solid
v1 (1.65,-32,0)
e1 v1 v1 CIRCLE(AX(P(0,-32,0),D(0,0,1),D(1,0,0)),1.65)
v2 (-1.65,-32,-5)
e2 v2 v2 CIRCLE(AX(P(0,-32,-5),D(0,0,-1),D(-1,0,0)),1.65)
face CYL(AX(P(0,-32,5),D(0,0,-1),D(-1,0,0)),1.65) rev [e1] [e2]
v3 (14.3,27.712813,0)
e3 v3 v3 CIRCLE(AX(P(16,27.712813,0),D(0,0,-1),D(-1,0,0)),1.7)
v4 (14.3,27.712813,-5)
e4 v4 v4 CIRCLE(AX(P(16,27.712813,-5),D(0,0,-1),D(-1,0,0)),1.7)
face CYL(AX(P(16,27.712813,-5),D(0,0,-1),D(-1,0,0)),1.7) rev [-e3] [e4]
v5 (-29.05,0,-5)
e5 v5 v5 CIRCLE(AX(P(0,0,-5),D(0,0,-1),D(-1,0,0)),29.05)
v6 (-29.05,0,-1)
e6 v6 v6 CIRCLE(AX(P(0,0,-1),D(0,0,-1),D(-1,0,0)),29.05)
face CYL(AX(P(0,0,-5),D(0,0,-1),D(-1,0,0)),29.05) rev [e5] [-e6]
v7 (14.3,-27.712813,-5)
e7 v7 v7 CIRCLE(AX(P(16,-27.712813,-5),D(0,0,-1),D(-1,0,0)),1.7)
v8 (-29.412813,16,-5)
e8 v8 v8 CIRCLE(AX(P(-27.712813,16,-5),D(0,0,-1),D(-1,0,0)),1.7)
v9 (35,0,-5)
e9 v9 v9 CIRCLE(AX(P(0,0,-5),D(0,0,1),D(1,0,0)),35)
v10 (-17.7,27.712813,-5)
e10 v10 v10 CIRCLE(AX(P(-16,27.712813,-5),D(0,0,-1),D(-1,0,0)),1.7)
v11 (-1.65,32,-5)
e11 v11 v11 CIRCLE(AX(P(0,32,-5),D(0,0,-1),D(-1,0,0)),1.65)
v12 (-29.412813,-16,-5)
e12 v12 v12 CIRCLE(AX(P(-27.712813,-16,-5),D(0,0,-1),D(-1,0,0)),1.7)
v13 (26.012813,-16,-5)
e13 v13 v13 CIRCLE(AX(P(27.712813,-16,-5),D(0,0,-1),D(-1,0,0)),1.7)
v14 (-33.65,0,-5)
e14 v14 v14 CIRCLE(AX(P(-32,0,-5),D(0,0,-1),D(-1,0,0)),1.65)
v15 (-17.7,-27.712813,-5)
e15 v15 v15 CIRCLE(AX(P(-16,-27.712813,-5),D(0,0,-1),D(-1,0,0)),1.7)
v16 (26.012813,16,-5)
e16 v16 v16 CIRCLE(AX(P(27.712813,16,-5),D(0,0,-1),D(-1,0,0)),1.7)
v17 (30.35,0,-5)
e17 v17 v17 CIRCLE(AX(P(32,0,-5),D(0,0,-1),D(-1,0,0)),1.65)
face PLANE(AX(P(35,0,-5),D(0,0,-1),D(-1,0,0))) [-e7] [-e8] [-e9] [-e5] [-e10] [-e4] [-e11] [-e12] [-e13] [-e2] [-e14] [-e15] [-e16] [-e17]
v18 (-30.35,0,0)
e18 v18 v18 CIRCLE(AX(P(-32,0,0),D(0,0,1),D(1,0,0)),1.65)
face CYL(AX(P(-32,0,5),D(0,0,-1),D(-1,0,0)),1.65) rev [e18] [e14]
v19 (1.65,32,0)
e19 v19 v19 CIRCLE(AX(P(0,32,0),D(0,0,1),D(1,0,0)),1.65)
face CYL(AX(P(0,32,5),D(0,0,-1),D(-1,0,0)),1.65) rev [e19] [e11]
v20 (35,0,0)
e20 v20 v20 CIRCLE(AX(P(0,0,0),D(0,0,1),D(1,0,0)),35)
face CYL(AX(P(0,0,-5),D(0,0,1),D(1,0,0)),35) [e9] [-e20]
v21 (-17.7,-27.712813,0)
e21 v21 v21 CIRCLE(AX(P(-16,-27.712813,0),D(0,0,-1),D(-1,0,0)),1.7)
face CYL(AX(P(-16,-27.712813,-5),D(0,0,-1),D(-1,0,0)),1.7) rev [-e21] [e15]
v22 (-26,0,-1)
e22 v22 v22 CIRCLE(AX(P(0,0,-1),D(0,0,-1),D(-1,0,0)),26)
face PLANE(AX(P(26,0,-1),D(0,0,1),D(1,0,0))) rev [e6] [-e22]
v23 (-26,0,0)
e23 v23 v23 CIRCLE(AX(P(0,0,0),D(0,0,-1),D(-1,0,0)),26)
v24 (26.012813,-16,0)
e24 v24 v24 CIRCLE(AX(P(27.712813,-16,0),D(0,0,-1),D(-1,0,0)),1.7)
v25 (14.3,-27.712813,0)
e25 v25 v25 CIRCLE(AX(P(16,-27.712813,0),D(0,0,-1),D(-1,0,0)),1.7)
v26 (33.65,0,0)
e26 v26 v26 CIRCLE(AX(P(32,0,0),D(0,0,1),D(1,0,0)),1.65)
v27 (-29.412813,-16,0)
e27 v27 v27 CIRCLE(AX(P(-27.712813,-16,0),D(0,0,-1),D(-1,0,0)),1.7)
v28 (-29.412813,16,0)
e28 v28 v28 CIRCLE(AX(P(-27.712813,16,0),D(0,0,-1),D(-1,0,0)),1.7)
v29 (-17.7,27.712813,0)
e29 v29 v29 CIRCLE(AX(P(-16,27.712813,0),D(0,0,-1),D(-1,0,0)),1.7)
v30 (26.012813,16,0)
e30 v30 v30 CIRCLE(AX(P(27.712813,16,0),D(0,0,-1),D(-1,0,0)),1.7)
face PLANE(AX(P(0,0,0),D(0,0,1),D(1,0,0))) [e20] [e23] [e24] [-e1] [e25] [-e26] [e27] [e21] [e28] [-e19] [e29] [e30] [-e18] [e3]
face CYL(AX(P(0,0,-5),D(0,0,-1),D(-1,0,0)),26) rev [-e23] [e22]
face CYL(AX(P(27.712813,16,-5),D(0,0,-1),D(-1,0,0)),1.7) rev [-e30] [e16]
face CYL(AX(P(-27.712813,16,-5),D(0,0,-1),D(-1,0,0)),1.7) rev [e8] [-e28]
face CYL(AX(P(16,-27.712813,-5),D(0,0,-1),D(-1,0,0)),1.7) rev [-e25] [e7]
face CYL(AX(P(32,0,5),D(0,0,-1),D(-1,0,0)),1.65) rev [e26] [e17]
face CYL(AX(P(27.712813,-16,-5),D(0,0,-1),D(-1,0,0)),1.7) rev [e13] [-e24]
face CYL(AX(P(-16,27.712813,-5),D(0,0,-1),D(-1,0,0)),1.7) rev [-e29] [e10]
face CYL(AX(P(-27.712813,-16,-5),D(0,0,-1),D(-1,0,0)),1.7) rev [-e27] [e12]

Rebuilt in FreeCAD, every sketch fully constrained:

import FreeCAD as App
import Part
import Sketcher
from FreeCAD import Vector


def add_polygon(sketch, points):
    """Adds a closed chain of lines whose ends are joined by coincident constraints."""
    first, n = sketch.GeometryCount, len(points)
    for a, b in zip(points, points[1:] + points[:1]):
        sketch.addGeometry(Part.LineSegment(App.Vector(*a, 0), App.Vector(*b, 0)), False)
    for i in range(n):
        sketch.addConstraint(Sketcher.Constraint("Coincident", first + i, 2, first + (i + 1) % n, 1))

doc = App.newDocument("Part")
params = doc.addObject("Spreadsheet::Sheet", "Params")
for row, (alias, value) in enumerate([
    ("sketch1_width", "35 mm"),
    ("sketch1_height", "5 mm"),
    ("revolution_angle", "360 deg"),
    ("sketch2_diameter", "3.4 mm"),
    ("hole_diameter", "3.4 mm"),
    ("hole_depth", "5 mm"),
    ("sketch3_diameter", "52 mm"),
    ("hole2_diameter", "52 mm"),
    ("hole2_depth", "5 mm"),
    ("hole2_cbore_diameter", "58.1 mm"),
    ("hole2_cbore_depth", "4 mm"),
    ("sketch4_diameter", "3.3 mm"),
    ("pocket1_length", "10 mm"),
], start=1):
    params.set(f"A{row}", alias)
    params.set(f"B{row}", "=" + value)
    params.setAlias(f"B{row}", alias)

body = doc.addObject("PartDesign::Body", "Body")

# Sketch on XZ plane
sketch1 = body.newObject("Sketcher::SketchObject", "Sketch")
sketch1.AttachmentSupport = (doc.getObject("XZ_Plane"), [""])
sketch1.MapMode = "FlatFace"
add_polygon(sketch1, [(0, -5), (0, 0), (35, 0), (35, -5)])  # lines 0-3
sketch1.addConstraint([
    Sketcher.Constraint("Vertical", 0),
    Sketcher.Constraint("Horizontal", 1),
    Sketcher.Constraint("Vertical", 2),
    Sketcher.Constraint("Horizontal", 3),
    Sketcher.Constraint("Coincident", 0, 2, -1, 1),
    Sketcher.Constraint("DistanceX", 1, 1, 1, 2, 35.0),
    Sketcher.Constraint("DistanceY", 0, 1, 0, 2, 5.0),
])
sketch1.setExpression("Constraints[9]", "Params.sketch1_width")
sketch1.setExpression("Constraints[10]", "Params.sketch1_height")
revolution = body.newObject("PartDesign::Revolution", "Revolution")
revolution.Profile = sketch1
revolution.ReferenceAxis = (sketch1, ["V_Axis"])
revolution.setExpression("Angle", "Params.revolution_angle")

# Sketch on XY plane
sketch2 = body.newObject("Sketcher::SketchObject", "Sketch001")
sketch2.AttachmentSupport = (doc.getObject("XY_Plane"), [""])
sketch2.MapMode = "FlatFace"
sketch2.AttachmentOffset = App.Placement(Vector(0, 0, -5), App.Rotation())
sketch2.addGeometry([
    Part.Circle(Vector(-16, -27.7, 0), Vector(0, 0, 1), 1.7),  # 0
    Part.Circle(Vector(16, -27.7, 0), Vector(0, 0, 1), 1.7),  # 1
    Part.Circle(Vector(27.7, -16, 0), Vector(0, 0, 1), 1.7),  # 2
    Part.Circle(Vector(27.7, 16, 0), Vector(0, 0, 1), 1.7),  # 3
    Part.Circle(Vector(16, 27.7, 0), Vector(0, 0, 1), 1.7),  # 4
    Part.Circle(Vector(-16, 27.7, 0), Vector(0, 0, 1), 1.7),  # 5
    Part.Circle(Vector(-27.7, 16, 0), Vector(0, 0, 1), 1.7),  # 6
    Part.Circle(Vector(-27.7, -16, 0), Vector(0, 0, 1), 1.7),  # 7
], False)
sketch2.addConstraint([
    Sketcher.Constraint("Equal", 0, 1),
    Sketcher.Constraint("Equal", 1, 2),
    Sketcher.Constraint("Equal", 2, 3),
    Sketcher.Constraint("Equal", 3, 4),
    Sketcher.Constraint("Equal", 4, 5),
    Sketcher.Constraint("Equal", 5, 6),
    Sketcher.Constraint("Equal", 6, 7),
    Sketcher.Constraint("Symmetric", 0, 3, 4, 3, -1, 1),
    Sketcher.Constraint("Symmetric", 1, 3, 5, 3, -1, 1),
    Sketcher.Constraint("Symmetric", 2, 3, 6, 3, -1, 1),
    Sketcher.Constraint("Symmetric", 3, 3, 7, 3, -1, 1),
    Sketcher.Constraint("Symmetric", 0, 3, 1, 3, -2),
    Sketcher.Constraint("Symmetric", 3, 3, 6, 3, -2),
    Sketcher.Constraint("Diameter", 0, 3.4),
    Sketcher.Constraint("DistanceX", 0, 3, -1, 1, 16.0),
    Sketcher.Constraint("DistanceY", 2, 3, -1, 1, 16.0),
    Sketcher.Constraint("DistanceY", 0, 3, -1, 1, 27.712813),
    Sketcher.Constraint("DistanceX", -1, 1, 2, 3, 27.712813),
])
sketch2.setExpression("Constraints[13]", "Params.sketch2_diameter")
doc.recompute()
hole = body.newObject("PartDesign::Hole", "Hole")
hole.Profile = sketch2
hole.ThreadType = "None"
hole.setExpression("Diameter", "Params.hole_diameter")
hole.DepthType = "Dimension"
hole.setExpression("Depth", "Params.hole_depth")
hole.DrillPoint = "Flat"
hole.Reversed = True

# Sketch on XY plane
sketch3 = body.newObject("Sketcher::SketchObject", "Sketch002")
sketch3.AttachmentSupport = (doc.getObject("XY_Plane"), [""])
sketch3.MapMode = "FlatFace"
sketch3.AttachmentOffset = App.Placement(Vector(0, 0, -5), App.Rotation())
sketch3.addGeometry(Part.Circle(Vector(0, 0, 0), Vector(0, 0, 1), 26), False)
sketch3.addConstraint([
    Sketcher.Constraint("Coincident", 0, 3, -1, 1),
    Sketcher.Constraint("Diameter", 0, 52.0),
])
sketch3.setExpression("Constraints[1]", "Params.sketch3_diameter")
doc.recompute()
hole2 = body.newObject("PartDesign::Hole", "Hole001")
hole2.Profile = sketch3
hole2.ThreadType = "None"
hole2.setExpression("Diameter", "Params.hole2_diameter")
hole2.DepthType = "Dimension"
hole2.setExpression("Depth", "Params.hole2_depth")
hole2.DrillPoint = "Flat"
hole2.HoleCutType = "Counterbore"
hole2.setExpression("HoleCutDiameter", "Params.hole2_cbore_diameter")
hole2.setExpression("HoleCutDepth", "Params.hole2_cbore_depth")
hole2.Reversed = True

# Sketch on XY plane
sketch4 = body.newObject("Sketcher::SketchObject", "Sketch003")
sketch4.AttachmentSupport = (doc.getObject("XY_Plane"), [""])
sketch4.MapMode = "FlatFace"
sketch4.AttachmentOffset = App.Placement(Vector(0, 0, -5), App.Rotation())
sketch4.addGeometry([
    Part.Circle(Vector(-32, 0, 0), Vector(0, 0, 1), 1.6),
    Part.Circle(Vector(0, -32, 0), Vector(0, 0, 1), 1.6),
    Part.Circle(Vector(32, 0, 0), Vector(0, 0, 1), 1.6),
    Part.Circle(Vector(0, 32, 0), Vector(0, 0, 1), 1.6),
], False)
sketch4.addConstraint([
    Sketcher.Constraint("Equal", 0, 1),
    Sketcher.Constraint("Equal", 1, 2),
    Sketcher.Constraint("Equal", 2, 3),
    Sketcher.Constraint("Symmetric", 0, 3, 2, 3, -1, 1),
    Sketcher.Constraint("Symmetric", 1, 3, 3, 3, -1, 1),
    Sketcher.Constraint("PointOnObject", 0, 3, -1),
    Sketcher.Constraint("PointOnObject", 1, 3, -2),
    Sketcher.Constraint("Diameter", 0, 3.3),
    Sketcher.Constraint("DistanceX", 0, 3, -1, 1, 32.0),
    Sketcher.Constraint("DistanceY", 1, 3, -1, 1, 32.0),
])
sketch4.setExpression("Constraints[7]", "Params.sketch4_diameter")
pocket1 = body.newObject("PartDesign::Pocket", "Pocket")
pocket1.Profile = sketch4
pocket1.setExpression("Length", "Params.pocket1_length")
pocket1.Reversed = True

doc.recompute()
